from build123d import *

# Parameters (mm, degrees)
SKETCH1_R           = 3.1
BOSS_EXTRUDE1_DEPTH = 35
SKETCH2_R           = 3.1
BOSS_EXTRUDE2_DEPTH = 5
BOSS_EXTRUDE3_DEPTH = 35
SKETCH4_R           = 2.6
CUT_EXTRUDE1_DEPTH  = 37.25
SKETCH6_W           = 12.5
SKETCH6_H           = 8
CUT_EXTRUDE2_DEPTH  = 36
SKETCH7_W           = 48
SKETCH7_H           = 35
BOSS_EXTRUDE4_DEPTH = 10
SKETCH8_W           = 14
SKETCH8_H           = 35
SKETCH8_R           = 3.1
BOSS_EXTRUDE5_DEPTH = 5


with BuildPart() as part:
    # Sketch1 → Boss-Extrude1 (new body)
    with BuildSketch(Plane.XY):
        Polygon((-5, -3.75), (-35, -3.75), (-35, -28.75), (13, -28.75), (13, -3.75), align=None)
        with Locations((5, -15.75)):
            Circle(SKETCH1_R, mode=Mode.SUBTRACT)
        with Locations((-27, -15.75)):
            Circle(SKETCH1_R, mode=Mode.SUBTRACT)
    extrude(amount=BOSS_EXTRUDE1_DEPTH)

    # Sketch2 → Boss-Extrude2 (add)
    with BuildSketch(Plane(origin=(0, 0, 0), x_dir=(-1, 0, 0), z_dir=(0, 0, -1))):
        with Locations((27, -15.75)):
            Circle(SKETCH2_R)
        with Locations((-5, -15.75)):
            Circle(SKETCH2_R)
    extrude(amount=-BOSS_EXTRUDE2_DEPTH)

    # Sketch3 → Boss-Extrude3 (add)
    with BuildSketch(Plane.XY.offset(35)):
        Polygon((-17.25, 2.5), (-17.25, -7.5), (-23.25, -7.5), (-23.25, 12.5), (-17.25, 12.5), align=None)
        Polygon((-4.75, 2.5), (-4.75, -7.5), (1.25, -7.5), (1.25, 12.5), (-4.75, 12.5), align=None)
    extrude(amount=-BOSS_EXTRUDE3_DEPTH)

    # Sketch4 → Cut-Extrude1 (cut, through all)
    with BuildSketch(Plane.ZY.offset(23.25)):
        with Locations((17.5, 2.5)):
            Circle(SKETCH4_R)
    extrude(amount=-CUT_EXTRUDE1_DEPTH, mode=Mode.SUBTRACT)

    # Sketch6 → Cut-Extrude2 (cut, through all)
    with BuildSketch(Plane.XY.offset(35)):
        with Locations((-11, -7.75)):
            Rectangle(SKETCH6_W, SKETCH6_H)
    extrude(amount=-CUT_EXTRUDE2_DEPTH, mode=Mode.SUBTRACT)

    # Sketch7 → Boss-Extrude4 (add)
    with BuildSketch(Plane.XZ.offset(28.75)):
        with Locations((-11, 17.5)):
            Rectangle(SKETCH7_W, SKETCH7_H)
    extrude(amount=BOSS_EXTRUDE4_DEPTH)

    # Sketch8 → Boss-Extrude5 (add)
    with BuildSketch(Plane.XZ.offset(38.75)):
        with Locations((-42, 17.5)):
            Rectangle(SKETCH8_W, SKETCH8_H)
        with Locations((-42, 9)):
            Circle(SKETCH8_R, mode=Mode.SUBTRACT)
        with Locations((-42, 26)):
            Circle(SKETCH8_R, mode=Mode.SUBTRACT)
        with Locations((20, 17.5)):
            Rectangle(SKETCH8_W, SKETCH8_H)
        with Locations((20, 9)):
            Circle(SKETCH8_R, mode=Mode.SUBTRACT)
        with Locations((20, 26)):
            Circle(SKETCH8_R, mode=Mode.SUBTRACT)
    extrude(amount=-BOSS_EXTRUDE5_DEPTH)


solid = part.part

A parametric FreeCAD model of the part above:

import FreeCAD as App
import Part
import Sketcher

V = App.Vector

doc = App.newDocument("Part")
params = doc.addObject("Spreadsheet::Sheet", "Params")
for row, (alias, value) in enumerate([
    ("sketch1_diameter", "6.2 mm"),
    ("sketch1_width", "48 mm"),
    ("sketch1_height", "25 mm"),
    ("pad1_length", "35 mm"),
    ("sketch2_diameter", "6.2 mm"),
    ("pad2_length", "5 mm"),
    ("sketch3_width", "6 mm"),
    ("sketch3_height", "20 mm"),
    ("pad3_length", "35 mm"),
    ("sketch4_diameter", "5.2 mm"),
    ("sketch5_height", "8 mm"),
    ("sketch5_width", "12.5 mm"),
    ("sketch6_width", "48 mm"),
    ("sketch6_height", "35 mm"),
    ("pad4_length", "10 mm"),
    ("sketch7_diameter", "6.2 mm"),
    ("sketch7_width", "14 mm"),
    ("sketch7_height", "35 mm"),
    ("pad5_length", "5 mm"),
], start=1):
    params.set(f"A{row}", alias)
    params.set(f"B{row}", "=" + value)
    params.setAlias(f"B{row}", alias)

body = doc.addObject("PartDesign::Body", "Body")

# Sketch on XY plane
sketch1 = body.newObject("Sketcher::SketchObject", "Sketch")
sketch1.AttachmentSupport = (doc.getObject("XY_Plane"), [""])
sketch1.MapMode = "FlatFace"
sketch1.addGeometry(Part.LineSegment(V(-35, -3.75, 0), V(-35, -28.75, 0)), False)
sketch1.addGeometry(Part.LineSegment(V(-35, -28.75, 0), V(13, -28.75, 0)), False)
sketch1.addGeometry(Part.LineSegment(V(13, -28.75, 0), V(13, -3.75, 0)), False)
sketch1.addGeometry(Part.LineSegment(V(13, -3.75, 0), V(-35, -3.75, 0)), False)
sketch1.addGeometry(Part.Circle(V(-27, -15.75, 0), V(0, 0, 1), 3.1), False)
sketch1.addGeometry(Part.Circle(V(5, -15.75, 0), V(0, 0, 1), 3.1), False)
sketch1.addConstraint(Sketcher.Constraint("Coincident", 0, 2, 1, 1))
sketch1.addConstraint(Sketcher.Constraint("Coincident", 1, 2, 2, 1))
sketch1.addConstraint(Sketcher.Constraint("Coincident", 2, 2, 3, 1))
sketch1.addConstraint(Sketcher.Constraint("Coincident", 3, 2, 0, 1))
sketch1.addConstraint(Sketcher.Constraint("Vertical", 0))
sketch1.addConstraint(Sketcher.Constraint("Horizontal", 1))
sketch1.addConstraint(Sketcher.Constraint("Vertical", 2))
sketch1.addConstraint(Sketcher.Constraint("Horizontal", 3))
sketch1.addConstraint(Sketcher.Constraint("Equal", 4, 5))
sketch1.addConstraint(Sketcher.Constraint("Horizontal", 4, 3, 5, 3))
sketch1.addConstraint(Sketcher.Constraint("Diameter", 4, 6.2))
sketch1.addConstraint(Sketcher.Constraint("DistanceX", 1, 1, 1, 2, 48.0))
sketch1.addConstraint(Sketcher.Constraint("DistanceY", 0, 2, 0, 1, 25.0))
sketch1.addConstraint(Sketcher.Constraint("DistanceX", 4, 3, -1, 1, 27.0))
sketch1.addConstraint(Sketcher.Constraint("DistanceX", -1, 1, 5, 3, 5.0))
sketch1.addConstraint(Sketcher.Constraint("DistanceX", 0, 2, -1, 1, 35.0))
sketch1.addConstraint(Sketcher.Constraint("DistanceY", 0, 2, 4, 3, 13.0))
sketch1.addConstraint(Sketcher.Constraint("DistanceY", 4, 3, -1, 1, 15.75))
sketch1.setExpression("Constraints[10]", "Params.sketch1_diameter")
sketch1.setExpression("Constraints[11]", "Params.sketch1_width")
sketch1.setExpression("Constraints[12]", "Params.sketch1_height")
pad1 = body.newObject("PartDesign::Pad", "Pad")
pad1.Profile = sketch1
pad1.setExpression("Length", "Params.pad1_length")

# Sketch on XY plane
sketch2 = body.newObject("Sketcher::SketchObject", "Sketch001")
sketch2.AttachmentSupport = (doc.getObject("XY_Plane"), [""])
sketch2.MapMode = "FlatFace"
sketch2.addGeometry(Part.Circle(V(-27, -15.75, 0), V(0, 0, 1), 3.1), False)
sketch2.addGeometry(Part.Circle(V(5, -15.75, 0), V(0, 0, 1), 3.1), False)
sketch2.addConstraint(Sketcher.Constraint("Equal", 0, 1))
sketch2.addConstraint(Sketcher.Constraint("Horizontal", 0, 3, 1, 3))
sketch2.addConstraint(Sketcher.Constraint("Diameter", 0, 6.2))
sketch2.addConstraint(Sketcher.Constraint("DistanceX", 0, 3, -1, 1, 27.0))
sketch2.addConstraint(Sketcher.Constraint("DistanceX", -1, 1, 1, 3, 5.0))
sketch2.addConstraint(Sketcher.Constraint("DistanceY", 0, 3, -1, 1, 15.75))
sketch2.setExpression("Constraints[2]", "Params.sketch2_diameter")
pad2 = body.newObject("PartDesign::Pad", "Pad001")
pad2.Profile = sketch2
pad2.setExpression("Length", "Params.pad2_length")

# Sketch on XY plane
sketch3 = body.newObject("Sketcher::SketchObject", "Sketch002")
sketch3.AttachmentSupport = (doc.getObject("XY_Plane"), [""])
sketch3.MapMode = "FlatFace"
sketch3.AttachmentOffset = App.Placement(V(0, 0, 35), App.Rotation())
sketch3.addGeometry(Part.LineSegment(V(-17.25, -7.5, 0), V(-17.25, 12.5, 0)), False)
sketch3.addGeometry(Part.LineSegment(V(-17.25, 12.5, 0), V(-23.25, 12.5, 0)), False)
sketch3.addGeometry(Part.LineSegment(V(-23.25, 12.5, 0), V(-23.25, -7.5, 0)), False)
sketch3.addGeometry(Part.LineSegment(V(-23.25, -7.5, 0), V(-17.25, -7.5, 0)), False)
sketch3.addGeometry(Part.LineSegment(V(-4.75, -7.5, 0), V(1.25, -7.5, 0)), False)
sketch3.addGeometry(Part.LineSegment(V(1.25, -7.5, 0), V(1.25, 12.5, 0)), False)
sketch3.addGeometry(Part.LineSegment(V(1.25, 12.5, 0), V(-4.75, 12.5, 0)), False)
sketch3.addGeometry(Part.LineSegment(V(-4.75, 12.5, 0), V(-4.75, -7.5, 0)), False)
sketch3.addConstraint(Sketcher.Constraint("Coincident", 0, 2, 1, 1))
sketch3.addConstraint(Sketcher.Constraint("Coincident", 1, 2, 2, 1))
sketch3.addConstraint(Sketcher.Constraint("Coincident", 2, 2, 3, 1))
sketch3.addConstraint(Sketcher.Constraint("Coincident", 3, 2, 0, 1))
sketch3.addConstraint(Sketcher.Constraint("Coincident", 4, 2, 5, 1))
sketch3.addConstraint(Sketcher.Constraint("Coincident", 5, 2, 6, 1))
sketch3.addConstraint(Sketcher.Constraint("Coincident", 6, 2, 7, 1))
sketch3.addConstraint(Sketcher.Constraint("Coincident", 7, 2, 4, 1))
sketch3.addConstraint(Sketcher.Constraint("Vertical", 0))
sketch3.addConstraint(Sketcher.Constraint("Horizontal", 1))
sketch3.addConstraint(Sketcher.Constraint("Vertical", 2))
sketch3.addConstraint(Sketcher.Constraint("Horizontal", 3))
sketch3.addConstraint(Sketcher.Constraint("Horizontal", 4))
sketch3.addConstraint(Sketcher.Constraint("Vertical", 5))
sketch3.addConstraint(Sketcher.Constraint("Horizontal", 6))
sketch3.addConstraint(Sketcher.Constraint("Vertical", 7))
sketch3.addConstraint(Sketcher.Constraint("Horizontal", 3, 2, 4, 2))
sketch3.addConstraint(Sketcher.Constraint("Horizontal", 1, 2, 5, 2))
sketch3.addConstraint(Sketcher.Constraint("Equal", 3, 4))
sketch3.addConstraint(Sketcher.Constraint("DistanceX", 1, 2, 1, 1, 6.0))
sketch3.addConstraint(Sketcher.Constraint("DistanceY", 0, 1, 0, 2, 20.0))
sketch3.addConstraint(Sketcher.Constraint("DistanceY", -1, 1, 0, 2, 12.5))
sketch3.addConstraint(Sketcher.Constraint("DistanceX", 3, 2, 4, 2, 18.5))
sketch3.addConstraint(Sketcher.Constraint("DistanceX", 0, 2, -1, 1, 17.25))
sketch3.setExpression("Constraints[19]", "Params.sketch3_width")
sketch3.setExpression("Constraints[20]", "Params.sketch3_height")
pad3 = body.newObject("PartDesign::Pad", "Pad002")
pad3.Profile = sketch3
pad3.setExpression("Length", "Params.pad3_length")
pad3.Reversed = True

# Sketch on YZ plane
sketch4 = body.newObject("Sketcher::SketchObject", "Sketch003")
sketch4.AttachmentSupport = (doc.getObject("YZ_Plane"), [""])
sketch4.MapMode = "FlatFace"
sketch4.AttachmentOffset = App.Placement(V(0, 0, -23.25), App.Rotation())
sketch4.addGeometry(Part.Circle(V(2.5, 17.5, 0), V(0, 0, 1), 2.6), False)
sketch4.addConstraint(Sketcher.Constraint("Diameter", 0, 5.2))
sketch4.addConstraint(Sketcher.Constraint("DistanceX", -1, 1, 0, 3, 2.5))
sketch4.addConstraint(Sketcher.Constraint("DistanceY", -1, 1, 0, 3, 17.5))
sketch4.setExpression("Constraints[0]", "Params.sketch4_diameter")
pocket1 = body.newObject("PartDesign::Pocket", "Pocket")
pocket1.Profile = sketch4
pocket1.Type = "ThroughAll"
pocket1.Reversed = True

# Sketch on XY plane
sketch5 = body.newObject("Sketcher::SketchObject", "Sketch004")
sketch5.AttachmentSupport = (doc.getObject("XY_Plane"), [""])
sketch5.MapMode = "FlatFace"
sketch5.AttachmentOffset = App.Placement(V(0, 0, 35), App.Rotation())
sketch5.addGeometry(Part.LineSegment(V(-17.25, -3.75, 0), V(-17.25, -11.75, 0)), False)
sketch5.addGeometry(Part.LineSegment(V(-17.25, -11.75, 0), V(-4.75, -11.75, 0)), False)
sketch5.addGeometry(Part.LineSegment(V(-4.75, -11.75, 0), V(-4.75, -3.75, 0)), False)
sketch5.addGeometry(Part.LineSegment(V(-4.75, -3.75, 0), V(-17.25, -3.75, 0)), False)
sketch5.addConstraint(Sketcher.Constraint("Coincident", 0, 2, 1, 1))
sketch5.addConstraint(Sketcher.Constraint("Coincident", 1, 2, 2, 1))
sketch5.addConstraint(Sketcher.Constraint("Coincident", 2, 2, 3, 1))
sketch5.addConstraint(Sketcher.Constraint("Coincident", 3, 2, 0, 1))
sketch5.addConstraint(Sketcher.Constraint("Vertical", 0))
sketch5.addConstraint(Sketcher.Constraint("Horizontal", 1))
sketch5.addConstraint(Sketcher.Constraint("Vertical", 2))
sketch5.addConstraint(Sketcher.Constraint("Horizontal", 3))
sketch5.addConstraint(Sketcher.Constraint("DistanceY", 0, 2, 0, 1, 8.0))
sketch5.addConstraint(Sketcher.Constraint("DistanceX", 1, 1, 1, 2, 12.5))
sketch5.addConstraint(Sketcher.Constraint("DistanceX", 0, 2, -1, 1, 17.25))
sketch5.addConstraint(Sketcher.Constraint("DistanceY", 0, 2, -1, 1, 11.75))
sketch5.setExpression("Constraints[8]", "Params.sketch5_height")
sketch5.setExpression("Constraints[9]", "Params.sketch5_width")
pocket2 = body.newObject("PartDesign::Pocket", "Pocket001")
pocket2.Profile = sketch5
pocket2.Type = "ThroughAll"

# Sketch on XZ plane
sketch6 = body.newObject("Sketcher::SketchObject", "Sketch005")
sketch6.AttachmentSupport = (doc.getObject("XZ_Plane"), [""])
sketch6.MapMode = "FlatFace"
sketch6.AttachmentOffset = App.Placement(V(0, 0, 28.75), App.Rotation())
sketch6.addGeometry(Part.LineSegment(V(-35, 35, 0), V(-35, 0, 0)), False)
sketch6.addGeometry(Part.LineSegment(V(-35, 0, 0), V(13, 0, 0)), False)
sketch6.addGeometry(Part.LineSegment(V(13, 0, 0), V(13, 35, 0)), False)
sketch6.addGeometry(Part.LineSegment(V(13, 35, 0), V(-35, 35, 0)), False)
sketch6.addConstraint(Sketcher.Constraint("Coincident", 0, 2, 1, 1))
sketch6.addConstraint(Sketcher.Constraint("Coincident", 1, 2, 2, 1))
sketch6.addConstraint(Sketcher.Constraint("Coincident", 2, 2, 3, 1))
sketch6.addConstraint(Sketcher.Constraint("Coincident", 3, 2, 0, 1))
sketch6.addConstraint(Sketcher.Constraint("Vertical", 0))
sketch6.addConstraint(Sketcher.Constraint("Horizontal", 1))
sketch6.addConstraint(Sketcher.Constraint("Vertical", 2))
sketch6.addConstraint(Sketcher.Constraint("Horizontal", 3))
sketch6.addConstraint(Sketcher.Constraint("PointOnObject", 0, 2, -1))
sketch6.addConstraint(Sketcher.Constraint("DistanceX", 1, 1, 1, 2, 48.0))
sketch6.addConstraint(Sketcher.Constraint("DistanceY", 0, 2, 0, 1, 35.0))
sketch6.addConstraint(Sketcher.Constraint("DistanceX", 0, 2, -1, 1, 35.0))
sketch6.setExpression("Constraints[9]", "Params.sketch6_width")
sketch6.setExpression("Constraints[10]", "Params.sketch6_height")
pad4 = body.newObject("PartDesign::Pad", "Pad003")
pad4.Profile = sketch6
pad4.setExpression("Length", "Params.pad4_length")

# Sketch on XZ plane
sketch7 = body.newObject("Sketcher::SketchObject", "Sketch006")
sketch7.AttachmentSupport = (doc.getObject("XZ_Plane"), [""])
sketch7.MapMode = "FlatFace"
sketch7.AttachmentOffset = App.Placement(V(0, 0, 38.75), App.Rotation())
sketch7.addGeometry(Part.LineSegment(V(-49, 35, 0), V(-49, 0, 0)), False)
sketch7.addGeometry(Part.LineSegment(V(-49, 0, 0), V(-35, 0, 0)), False)
sketch7.addGeometry(Part.LineSegment(V(-35, 0, 0), V(-35, 35, 0)), False)
sketch7.addGeometry(Part.LineSegment(V(-35, 35, 0), V(-49, 35, 0)), False)
sketch7.addGeometry(Part.Circle(V(-42, 9, 0), V(0, 0, 1), 3.1), False)
sketch7.addGeometry(Part.Circle(V(-42, 26, 0), V(0, 0, 1), 3.1), False)
sketch7.addGeometry(Part.LineSegment(V(13, 35, 0), V(13, 0, 0)), False)
sketch7.addGeometry(Part.LineSegment(V(13, 0, 0), V(27, 0, 0)), False)
sketch7.addGeometry(Part.LineSegment(V(27, 0, 0), V(27, 35, 0)), False)
sketch7.addGeometry(Part.LineSegment(V(27, 35, 0), V(13, 35, 0)), False)
sketch7.addGeometry(Part.Circle(V(20, 9, 0), V(0, 0, 1), 3.1), False)
sketch7.addGeometry(Part.Circle(V(20, 26, 0), V(0, 0, 1), 3.1), False)
sketch7.addConstraint(Sketcher.Constraint("Coincident", 0, 2, 1, 1))
sketch7.addConstraint(Sketcher.Constraint("Coincident", 1, 2, 2, 1))
sketch7.addConstraint(Sketcher.Constraint("Coincident", 2, 2, 3, 1))
sketch7.addConstraint(Sketcher.Constraint("Coincident", 3, 2, 0, 1))
sketch7.addConstraint(Sketcher.Constraint("Coincident", 6, 2, 7, 1))
sketch7.addConstraint(Sketcher.Constraint("Coincident", 7, 2, 8, 1))
sketch7.addConstraint(Sketcher.Constraint("Coincident", 8, 2, 9, 1))
sketch7.addConstraint(Sketcher.Constraint("Coincident", 9, 2, 6, 1))
sketch7.addConstraint(Sketcher.Constraint("Vertical", 0))
sketch7.addConstraint(Sketcher.Constraint("Horizontal", 1))
sketch7.addConstraint(Sketcher.Constraint("Vertical", 2))
sketch7.addConstraint(Sketcher.Constraint("Horizontal", 3))
sketch7.addConstraint(Sketcher.Constraint("Vertical", 6))
sketch7.addConstraint(Sketcher.Constraint("Horizontal", 7))
sketch7.addConstraint(Sketcher.Constraint("Vertical", 8))
sketch7.addConstraint(Sketcher.Constraint("Horizontal", 9))
sketch7.addConstraint(Sketcher.Constraint("Equal", 4, 5))
sketch7.addConstraint(Sketcher.Constraint("Equal", 5, 10))
sketch7.addConstraint(Sketcher.Constraint("Equal", 10, 11))
sketch7.addConstraint(Sketcher.Constraint("PointOnObject", 0, 2, -1))
sketch7.addConstraint(Sketcher.Constraint("PointOnObject", 6, 2, -1))
sketch7.addConstraint(Sketcher.Constraint("Horizontal", 4, 3, 10, 3))
sketch7.addConstraint(Sketcher.Constraint("Horizontal", 5, 3, 11, 3))
sketch7.addConstraint(Sketcher.Constraint("Horizontal", 3, 2, 8, 2))
sketch7.addConstraint(Sketcher.Constraint("Vertical", 4, 3, 5, 3))
sketch7.addConstraint(Sketcher.Constraint("Vertical", 10, 3, 11, 3))
sketch7.addConstraint(Sketcher.Constraint("Equal", 3, 7))
sketch7.addConstraint(Sketcher.Constraint("Diameter", 4, 6.2))
sketch7.addConstraint(Sketcher.Constraint("DistanceX", 1, 1, 1, 2, 14.0))
sketch7.addConstraint(Sketcher.Constraint("DistanceY", 0, 2, 0, 1, 35.0))
sketch7.addConstraint(Sketcher.Constraint("DistanceX", 4, 3, -1, 1, 42.0))
sketch7.addConstraint(Sketcher.Constraint("DistanceY", -1, 1, 4, 3, 9.0))
sketch7.addConstraint(Sketcher.Constraint("DistanceY", -1, 1, 5, 3, 26.0))
sketch7.addConstraint(Sketcher.Constraint("DistanceX", -1, 1, 10, 3, 20.0))
sketch7.addConstraint(Sketcher.Constraint("DistanceX", 0, 2, -1, 1, 49.0))
sketch7.addConstraint(Sketcher.Constraint("DistanceX", -1, 1, 6, 2, 13.0))
sketch7.setExpression("Constraints[27]", "Params.sketch7_diameter")
sketch7.setExpression("Constraints[28]", "Params.sketch7_width")
sketch7.setExpression("Constraints[29]", "Params.sketch7_height")
pad5 = body.newObject("PartDesign::Pad", "Pad004")
pad5.Profile = sketch7
pad5.setExpression("Length", "Params.pad5_length")
pad5.Reversed = True

doc.recompute()
